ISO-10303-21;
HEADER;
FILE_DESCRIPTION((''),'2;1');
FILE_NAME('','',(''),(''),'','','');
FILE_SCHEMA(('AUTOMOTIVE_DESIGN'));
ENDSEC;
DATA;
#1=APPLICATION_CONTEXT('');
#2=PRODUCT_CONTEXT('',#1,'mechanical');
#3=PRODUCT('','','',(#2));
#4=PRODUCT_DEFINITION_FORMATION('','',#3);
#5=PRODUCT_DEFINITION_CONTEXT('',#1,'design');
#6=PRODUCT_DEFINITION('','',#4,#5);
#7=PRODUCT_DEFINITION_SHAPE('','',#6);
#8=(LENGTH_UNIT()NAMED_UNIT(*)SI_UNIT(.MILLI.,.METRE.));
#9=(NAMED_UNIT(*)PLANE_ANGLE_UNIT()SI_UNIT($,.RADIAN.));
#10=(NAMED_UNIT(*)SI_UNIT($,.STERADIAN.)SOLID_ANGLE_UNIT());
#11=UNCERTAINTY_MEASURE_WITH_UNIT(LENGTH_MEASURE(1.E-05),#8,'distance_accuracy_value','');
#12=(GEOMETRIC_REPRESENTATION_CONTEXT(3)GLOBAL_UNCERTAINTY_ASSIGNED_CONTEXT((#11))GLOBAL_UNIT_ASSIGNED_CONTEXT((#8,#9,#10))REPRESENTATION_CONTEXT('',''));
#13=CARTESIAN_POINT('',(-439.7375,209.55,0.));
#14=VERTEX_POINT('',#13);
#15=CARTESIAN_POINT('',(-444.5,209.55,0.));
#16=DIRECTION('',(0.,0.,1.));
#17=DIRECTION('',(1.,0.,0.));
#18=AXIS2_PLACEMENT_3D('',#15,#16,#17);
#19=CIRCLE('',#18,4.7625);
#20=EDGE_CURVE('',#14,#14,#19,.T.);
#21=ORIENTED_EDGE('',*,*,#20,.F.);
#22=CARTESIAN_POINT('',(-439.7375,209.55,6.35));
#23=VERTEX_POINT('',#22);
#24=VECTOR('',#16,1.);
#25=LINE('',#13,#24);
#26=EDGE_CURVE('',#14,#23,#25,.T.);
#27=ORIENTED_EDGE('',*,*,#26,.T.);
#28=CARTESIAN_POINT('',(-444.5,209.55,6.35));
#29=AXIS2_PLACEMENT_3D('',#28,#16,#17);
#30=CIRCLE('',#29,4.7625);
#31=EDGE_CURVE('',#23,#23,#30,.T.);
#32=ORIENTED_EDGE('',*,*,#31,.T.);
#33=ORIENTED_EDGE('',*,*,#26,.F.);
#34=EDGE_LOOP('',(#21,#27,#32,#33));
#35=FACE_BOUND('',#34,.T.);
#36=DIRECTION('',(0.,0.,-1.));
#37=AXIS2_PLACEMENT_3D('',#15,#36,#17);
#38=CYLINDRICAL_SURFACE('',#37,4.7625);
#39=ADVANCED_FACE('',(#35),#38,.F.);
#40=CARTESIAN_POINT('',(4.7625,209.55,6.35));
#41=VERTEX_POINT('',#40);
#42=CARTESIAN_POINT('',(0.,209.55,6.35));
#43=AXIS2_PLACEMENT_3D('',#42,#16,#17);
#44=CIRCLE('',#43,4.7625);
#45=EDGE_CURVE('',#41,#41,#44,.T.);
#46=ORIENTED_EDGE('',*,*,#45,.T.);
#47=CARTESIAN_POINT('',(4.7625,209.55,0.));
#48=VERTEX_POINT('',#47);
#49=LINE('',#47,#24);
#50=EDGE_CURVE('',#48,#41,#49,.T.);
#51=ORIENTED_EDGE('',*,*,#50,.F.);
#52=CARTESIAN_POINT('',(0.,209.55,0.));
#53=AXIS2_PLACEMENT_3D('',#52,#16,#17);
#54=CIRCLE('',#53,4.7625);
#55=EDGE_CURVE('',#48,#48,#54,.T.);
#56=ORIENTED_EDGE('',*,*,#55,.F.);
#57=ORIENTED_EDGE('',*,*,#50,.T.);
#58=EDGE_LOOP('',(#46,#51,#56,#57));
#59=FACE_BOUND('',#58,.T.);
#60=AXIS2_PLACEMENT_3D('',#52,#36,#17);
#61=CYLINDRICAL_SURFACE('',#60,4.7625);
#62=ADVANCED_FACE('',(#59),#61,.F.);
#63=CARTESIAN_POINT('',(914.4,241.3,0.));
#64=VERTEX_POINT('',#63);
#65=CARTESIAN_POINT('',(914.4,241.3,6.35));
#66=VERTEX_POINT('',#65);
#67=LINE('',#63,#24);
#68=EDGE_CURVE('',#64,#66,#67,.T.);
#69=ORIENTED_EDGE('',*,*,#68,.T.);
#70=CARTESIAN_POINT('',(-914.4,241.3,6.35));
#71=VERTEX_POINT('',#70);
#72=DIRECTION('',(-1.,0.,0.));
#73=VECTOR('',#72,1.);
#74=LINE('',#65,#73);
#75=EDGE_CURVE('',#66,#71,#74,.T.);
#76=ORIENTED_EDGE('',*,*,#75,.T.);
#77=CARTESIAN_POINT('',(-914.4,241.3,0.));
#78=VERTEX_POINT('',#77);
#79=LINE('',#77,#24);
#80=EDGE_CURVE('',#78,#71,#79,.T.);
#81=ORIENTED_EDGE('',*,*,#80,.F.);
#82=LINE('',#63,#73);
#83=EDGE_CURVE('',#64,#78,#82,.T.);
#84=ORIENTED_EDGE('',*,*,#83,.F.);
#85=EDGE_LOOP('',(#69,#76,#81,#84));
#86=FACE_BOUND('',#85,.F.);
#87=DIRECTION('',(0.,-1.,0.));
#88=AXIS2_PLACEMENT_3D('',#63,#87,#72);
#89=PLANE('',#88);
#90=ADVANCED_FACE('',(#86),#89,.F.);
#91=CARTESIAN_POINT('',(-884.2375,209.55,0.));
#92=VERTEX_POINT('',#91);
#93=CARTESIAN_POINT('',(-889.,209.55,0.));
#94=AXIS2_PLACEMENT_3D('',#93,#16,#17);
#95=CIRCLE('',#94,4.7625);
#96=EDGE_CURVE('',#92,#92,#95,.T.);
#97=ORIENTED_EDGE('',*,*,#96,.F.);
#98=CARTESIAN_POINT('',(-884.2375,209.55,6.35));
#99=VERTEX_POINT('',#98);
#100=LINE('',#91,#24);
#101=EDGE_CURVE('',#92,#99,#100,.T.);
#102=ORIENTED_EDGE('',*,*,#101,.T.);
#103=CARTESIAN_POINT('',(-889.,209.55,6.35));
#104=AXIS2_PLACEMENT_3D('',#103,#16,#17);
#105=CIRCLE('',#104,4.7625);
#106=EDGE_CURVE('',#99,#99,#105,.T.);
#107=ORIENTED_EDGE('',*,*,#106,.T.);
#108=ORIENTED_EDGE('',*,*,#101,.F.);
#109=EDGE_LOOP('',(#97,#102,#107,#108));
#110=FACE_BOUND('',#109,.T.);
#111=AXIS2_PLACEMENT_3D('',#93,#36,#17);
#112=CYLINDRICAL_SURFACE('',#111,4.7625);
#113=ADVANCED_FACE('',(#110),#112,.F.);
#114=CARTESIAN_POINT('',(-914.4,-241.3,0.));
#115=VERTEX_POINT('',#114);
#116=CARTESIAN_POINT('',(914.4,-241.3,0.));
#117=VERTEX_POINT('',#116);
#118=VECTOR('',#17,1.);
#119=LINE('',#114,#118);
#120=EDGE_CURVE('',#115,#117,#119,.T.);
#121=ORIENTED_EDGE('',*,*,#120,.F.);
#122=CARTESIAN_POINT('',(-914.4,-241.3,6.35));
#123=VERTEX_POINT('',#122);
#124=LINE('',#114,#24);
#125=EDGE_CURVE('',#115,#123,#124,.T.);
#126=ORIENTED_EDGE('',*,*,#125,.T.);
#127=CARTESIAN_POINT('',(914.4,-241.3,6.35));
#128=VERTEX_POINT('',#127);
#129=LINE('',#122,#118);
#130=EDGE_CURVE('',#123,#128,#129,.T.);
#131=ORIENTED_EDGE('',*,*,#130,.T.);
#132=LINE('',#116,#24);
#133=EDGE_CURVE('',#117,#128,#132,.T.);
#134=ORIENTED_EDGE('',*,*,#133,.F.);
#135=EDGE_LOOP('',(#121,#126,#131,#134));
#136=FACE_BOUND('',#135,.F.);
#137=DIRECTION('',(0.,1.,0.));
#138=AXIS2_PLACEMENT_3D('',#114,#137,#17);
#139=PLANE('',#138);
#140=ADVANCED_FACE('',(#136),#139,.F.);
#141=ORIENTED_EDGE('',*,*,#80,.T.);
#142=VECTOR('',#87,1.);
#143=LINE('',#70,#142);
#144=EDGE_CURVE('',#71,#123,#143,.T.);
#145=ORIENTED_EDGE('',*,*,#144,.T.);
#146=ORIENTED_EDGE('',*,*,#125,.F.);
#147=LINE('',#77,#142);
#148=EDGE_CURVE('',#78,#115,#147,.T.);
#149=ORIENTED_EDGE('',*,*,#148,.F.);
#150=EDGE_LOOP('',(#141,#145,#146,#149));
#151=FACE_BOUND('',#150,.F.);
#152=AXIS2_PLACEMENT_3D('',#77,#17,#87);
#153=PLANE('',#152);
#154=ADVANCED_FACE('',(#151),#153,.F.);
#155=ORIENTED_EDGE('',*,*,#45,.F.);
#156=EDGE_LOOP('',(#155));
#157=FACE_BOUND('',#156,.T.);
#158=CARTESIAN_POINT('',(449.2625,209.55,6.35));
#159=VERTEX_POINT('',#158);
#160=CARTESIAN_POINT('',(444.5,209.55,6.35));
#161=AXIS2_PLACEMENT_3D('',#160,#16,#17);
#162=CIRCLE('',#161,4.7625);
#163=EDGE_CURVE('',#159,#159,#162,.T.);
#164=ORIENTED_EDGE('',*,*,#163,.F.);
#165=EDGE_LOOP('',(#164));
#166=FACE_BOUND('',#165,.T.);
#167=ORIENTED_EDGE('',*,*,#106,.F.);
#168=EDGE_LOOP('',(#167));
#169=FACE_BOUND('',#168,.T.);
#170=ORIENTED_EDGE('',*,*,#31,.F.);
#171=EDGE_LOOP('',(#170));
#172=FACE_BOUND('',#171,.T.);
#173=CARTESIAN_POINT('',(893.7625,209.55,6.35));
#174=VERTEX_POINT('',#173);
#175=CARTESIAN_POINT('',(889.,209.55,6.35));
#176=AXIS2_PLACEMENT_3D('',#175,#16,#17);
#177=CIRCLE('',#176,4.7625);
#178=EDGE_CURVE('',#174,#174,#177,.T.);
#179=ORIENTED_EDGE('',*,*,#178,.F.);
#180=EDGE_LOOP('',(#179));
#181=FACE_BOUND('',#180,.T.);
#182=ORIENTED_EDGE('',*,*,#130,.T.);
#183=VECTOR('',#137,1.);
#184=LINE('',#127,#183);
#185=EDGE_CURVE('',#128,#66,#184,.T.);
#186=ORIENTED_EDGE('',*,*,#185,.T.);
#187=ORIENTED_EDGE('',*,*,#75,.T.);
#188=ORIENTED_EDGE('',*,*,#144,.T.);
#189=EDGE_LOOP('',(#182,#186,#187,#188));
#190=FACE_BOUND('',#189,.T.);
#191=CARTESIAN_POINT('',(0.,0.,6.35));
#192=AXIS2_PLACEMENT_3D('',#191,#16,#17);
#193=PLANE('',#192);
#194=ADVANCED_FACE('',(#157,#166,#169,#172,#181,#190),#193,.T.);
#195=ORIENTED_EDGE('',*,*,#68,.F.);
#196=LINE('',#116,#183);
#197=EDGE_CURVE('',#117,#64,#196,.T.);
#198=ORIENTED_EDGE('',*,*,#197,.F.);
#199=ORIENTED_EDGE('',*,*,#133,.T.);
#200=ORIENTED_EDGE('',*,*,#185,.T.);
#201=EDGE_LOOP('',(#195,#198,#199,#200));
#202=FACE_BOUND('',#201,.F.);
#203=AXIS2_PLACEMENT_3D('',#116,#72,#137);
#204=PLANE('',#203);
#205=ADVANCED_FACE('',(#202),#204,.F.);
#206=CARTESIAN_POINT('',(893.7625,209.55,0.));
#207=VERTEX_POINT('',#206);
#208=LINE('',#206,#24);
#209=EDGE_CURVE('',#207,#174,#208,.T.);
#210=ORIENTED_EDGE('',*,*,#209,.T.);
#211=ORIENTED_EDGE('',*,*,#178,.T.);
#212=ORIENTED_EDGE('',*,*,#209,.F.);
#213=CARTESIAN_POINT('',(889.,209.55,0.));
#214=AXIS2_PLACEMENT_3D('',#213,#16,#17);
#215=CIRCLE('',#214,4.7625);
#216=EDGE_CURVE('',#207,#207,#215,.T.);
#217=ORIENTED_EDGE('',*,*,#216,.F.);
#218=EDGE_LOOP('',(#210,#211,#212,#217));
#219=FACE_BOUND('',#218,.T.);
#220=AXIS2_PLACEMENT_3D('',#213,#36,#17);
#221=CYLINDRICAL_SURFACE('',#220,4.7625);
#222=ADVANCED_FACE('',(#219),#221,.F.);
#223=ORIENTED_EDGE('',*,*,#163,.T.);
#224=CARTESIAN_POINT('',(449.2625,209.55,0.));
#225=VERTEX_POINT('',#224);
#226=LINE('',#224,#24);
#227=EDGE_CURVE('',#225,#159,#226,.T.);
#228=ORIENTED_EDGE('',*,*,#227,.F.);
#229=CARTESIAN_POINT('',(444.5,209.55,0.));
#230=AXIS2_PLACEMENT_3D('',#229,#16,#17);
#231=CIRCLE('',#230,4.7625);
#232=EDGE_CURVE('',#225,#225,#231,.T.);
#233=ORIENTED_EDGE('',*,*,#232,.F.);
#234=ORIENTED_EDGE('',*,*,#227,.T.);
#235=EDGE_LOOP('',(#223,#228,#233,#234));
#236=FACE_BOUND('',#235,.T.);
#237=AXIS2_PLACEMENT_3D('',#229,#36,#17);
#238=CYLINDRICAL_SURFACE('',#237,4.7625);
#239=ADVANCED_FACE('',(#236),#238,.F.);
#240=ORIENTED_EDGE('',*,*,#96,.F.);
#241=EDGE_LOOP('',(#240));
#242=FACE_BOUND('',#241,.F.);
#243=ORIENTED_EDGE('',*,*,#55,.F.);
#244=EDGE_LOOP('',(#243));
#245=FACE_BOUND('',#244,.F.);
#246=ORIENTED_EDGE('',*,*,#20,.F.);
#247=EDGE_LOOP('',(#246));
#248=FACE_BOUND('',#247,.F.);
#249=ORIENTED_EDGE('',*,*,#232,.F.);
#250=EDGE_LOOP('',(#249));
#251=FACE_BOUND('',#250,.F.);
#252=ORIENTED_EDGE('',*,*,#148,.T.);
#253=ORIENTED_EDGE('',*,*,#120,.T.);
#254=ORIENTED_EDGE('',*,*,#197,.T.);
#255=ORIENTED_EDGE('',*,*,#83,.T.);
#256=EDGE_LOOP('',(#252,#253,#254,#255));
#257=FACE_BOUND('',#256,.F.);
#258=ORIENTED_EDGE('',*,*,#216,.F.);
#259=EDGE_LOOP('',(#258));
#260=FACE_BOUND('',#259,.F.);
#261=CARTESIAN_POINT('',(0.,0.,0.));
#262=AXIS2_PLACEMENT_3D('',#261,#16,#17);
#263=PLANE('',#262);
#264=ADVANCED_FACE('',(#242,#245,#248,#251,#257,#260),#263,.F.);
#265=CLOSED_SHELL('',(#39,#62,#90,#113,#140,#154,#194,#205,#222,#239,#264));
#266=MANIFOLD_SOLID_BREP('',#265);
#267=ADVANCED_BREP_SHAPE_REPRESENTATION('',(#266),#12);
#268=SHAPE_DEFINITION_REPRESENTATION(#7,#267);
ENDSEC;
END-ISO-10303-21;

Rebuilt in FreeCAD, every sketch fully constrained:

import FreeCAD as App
import Part
import Sketcher

V = App.Vector
Q = App.Units.Quantity

doc = App.newDocument("Part")
body = doc.addObject("PartDesign::Body", "Body")

sketch1 = body.newObject("Sketcher::SketchObject", "Sketch")
sketch1.AttachmentSupport = (doc.getObject("XY_Plane"), [""])
sketch1.MapMode = "FlatFace"
sketch1.addGeometry([
    Part.LineSegment(V(-914.4, 241.3, 0), V(-914.4, -241.3, 0)),
    Part.LineSegment(V(-914.4, -241.3, 0), V(914.4, -241.3, 0)),
    Part.LineSegment(V(914.4, -241.3, 0), V(914.4, 241.3, 0)),
    Part.LineSegment(V(914.4, 241.3, 0), V(-914.4, 241.3, 0)),
    Part.Circle(V(-889, 209.55, 0), V(0, 0, 1), 4.7625),
    Part.Circle(V(-444.5, 209.55, 0), V(0, 0, 1), 4.7625),
    Part.Circle(V(0, 209.55, 0), V(0, 0, 1), 4.7625),
    Part.Circle(V(444.5, 209.55, 0), V(0, 0, 1), 4.7625),
    Part.Circle(V(889, 209.55, 0), V(0, 0, 1), 4.7625),
], False)
sketch1.addConstraint([
    Sketcher.Constraint("Coincident", 0, 2, 1, 1),
    Sketcher.Constraint("Coincident", 1, 2, 2, 1),
    Sketcher.Constraint("Coincident", 2, 2, 3, 1),
    Sketcher.Constraint("Coincident", 3, 2, 0, 1),
    Sketcher.Constraint("Vertical", 0),
    Sketcher.Constraint("Horizontal", 1),
    Sketcher.Constraint("Vertical", 2),
    Sketcher.Constraint("Horizontal", 3),
    Sketcher.Constraint("Equal", 4, 5),
    Sketcher.Constraint("Equal", 5, 6),
    Sketcher.Constraint("Equal", 6, 7),
    Sketcher.Constraint("Equal", 7, 8),
    Sketcher.Constraint("Symmetric", 0, 2, 2, 2, -1, 1),
    Sketcher.Constraint("Symmetric", 5, 3, 7, 3, -2),
    Sketcher.Constraint("Symmetric", 4, 3, 8, 3, -2),
    Sketcher.Constraint("PointOnObject", 6, 3, -2),
    Sketcher.Constraint("Horizontal", 4, 3, 5, 3),
    Sketcher.Constraint("Horizontal", 5, 3, 6, 3),
    Sketcher.Constraint("DistanceX", 1, 1, 1, 2, Q("72 in")),
    Sketcher.Constraint("DistanceY", 0, 2, 0, 1, Q("19 in")),
    Sketcher.Constraint("Diameter", 4, Q("0.375 in")),
    Sketcher.Constraint("DistanceX", 0, 2, 4, 3, Q("1 in")),
    Sketcher.Constraint("DistanceX", 5, 3, -1, 1, Q("17.5 in")),
    Sketcher.Constraint("DistanceY", 8, 3, 2, 2, Q("1.25 in")),
])
pad1 = body.newObject("PartDesign::Pad", "Pad")
pad1.Profile = sketch1
pad1.Length = Q("0.25 in")

doc.recompute()
